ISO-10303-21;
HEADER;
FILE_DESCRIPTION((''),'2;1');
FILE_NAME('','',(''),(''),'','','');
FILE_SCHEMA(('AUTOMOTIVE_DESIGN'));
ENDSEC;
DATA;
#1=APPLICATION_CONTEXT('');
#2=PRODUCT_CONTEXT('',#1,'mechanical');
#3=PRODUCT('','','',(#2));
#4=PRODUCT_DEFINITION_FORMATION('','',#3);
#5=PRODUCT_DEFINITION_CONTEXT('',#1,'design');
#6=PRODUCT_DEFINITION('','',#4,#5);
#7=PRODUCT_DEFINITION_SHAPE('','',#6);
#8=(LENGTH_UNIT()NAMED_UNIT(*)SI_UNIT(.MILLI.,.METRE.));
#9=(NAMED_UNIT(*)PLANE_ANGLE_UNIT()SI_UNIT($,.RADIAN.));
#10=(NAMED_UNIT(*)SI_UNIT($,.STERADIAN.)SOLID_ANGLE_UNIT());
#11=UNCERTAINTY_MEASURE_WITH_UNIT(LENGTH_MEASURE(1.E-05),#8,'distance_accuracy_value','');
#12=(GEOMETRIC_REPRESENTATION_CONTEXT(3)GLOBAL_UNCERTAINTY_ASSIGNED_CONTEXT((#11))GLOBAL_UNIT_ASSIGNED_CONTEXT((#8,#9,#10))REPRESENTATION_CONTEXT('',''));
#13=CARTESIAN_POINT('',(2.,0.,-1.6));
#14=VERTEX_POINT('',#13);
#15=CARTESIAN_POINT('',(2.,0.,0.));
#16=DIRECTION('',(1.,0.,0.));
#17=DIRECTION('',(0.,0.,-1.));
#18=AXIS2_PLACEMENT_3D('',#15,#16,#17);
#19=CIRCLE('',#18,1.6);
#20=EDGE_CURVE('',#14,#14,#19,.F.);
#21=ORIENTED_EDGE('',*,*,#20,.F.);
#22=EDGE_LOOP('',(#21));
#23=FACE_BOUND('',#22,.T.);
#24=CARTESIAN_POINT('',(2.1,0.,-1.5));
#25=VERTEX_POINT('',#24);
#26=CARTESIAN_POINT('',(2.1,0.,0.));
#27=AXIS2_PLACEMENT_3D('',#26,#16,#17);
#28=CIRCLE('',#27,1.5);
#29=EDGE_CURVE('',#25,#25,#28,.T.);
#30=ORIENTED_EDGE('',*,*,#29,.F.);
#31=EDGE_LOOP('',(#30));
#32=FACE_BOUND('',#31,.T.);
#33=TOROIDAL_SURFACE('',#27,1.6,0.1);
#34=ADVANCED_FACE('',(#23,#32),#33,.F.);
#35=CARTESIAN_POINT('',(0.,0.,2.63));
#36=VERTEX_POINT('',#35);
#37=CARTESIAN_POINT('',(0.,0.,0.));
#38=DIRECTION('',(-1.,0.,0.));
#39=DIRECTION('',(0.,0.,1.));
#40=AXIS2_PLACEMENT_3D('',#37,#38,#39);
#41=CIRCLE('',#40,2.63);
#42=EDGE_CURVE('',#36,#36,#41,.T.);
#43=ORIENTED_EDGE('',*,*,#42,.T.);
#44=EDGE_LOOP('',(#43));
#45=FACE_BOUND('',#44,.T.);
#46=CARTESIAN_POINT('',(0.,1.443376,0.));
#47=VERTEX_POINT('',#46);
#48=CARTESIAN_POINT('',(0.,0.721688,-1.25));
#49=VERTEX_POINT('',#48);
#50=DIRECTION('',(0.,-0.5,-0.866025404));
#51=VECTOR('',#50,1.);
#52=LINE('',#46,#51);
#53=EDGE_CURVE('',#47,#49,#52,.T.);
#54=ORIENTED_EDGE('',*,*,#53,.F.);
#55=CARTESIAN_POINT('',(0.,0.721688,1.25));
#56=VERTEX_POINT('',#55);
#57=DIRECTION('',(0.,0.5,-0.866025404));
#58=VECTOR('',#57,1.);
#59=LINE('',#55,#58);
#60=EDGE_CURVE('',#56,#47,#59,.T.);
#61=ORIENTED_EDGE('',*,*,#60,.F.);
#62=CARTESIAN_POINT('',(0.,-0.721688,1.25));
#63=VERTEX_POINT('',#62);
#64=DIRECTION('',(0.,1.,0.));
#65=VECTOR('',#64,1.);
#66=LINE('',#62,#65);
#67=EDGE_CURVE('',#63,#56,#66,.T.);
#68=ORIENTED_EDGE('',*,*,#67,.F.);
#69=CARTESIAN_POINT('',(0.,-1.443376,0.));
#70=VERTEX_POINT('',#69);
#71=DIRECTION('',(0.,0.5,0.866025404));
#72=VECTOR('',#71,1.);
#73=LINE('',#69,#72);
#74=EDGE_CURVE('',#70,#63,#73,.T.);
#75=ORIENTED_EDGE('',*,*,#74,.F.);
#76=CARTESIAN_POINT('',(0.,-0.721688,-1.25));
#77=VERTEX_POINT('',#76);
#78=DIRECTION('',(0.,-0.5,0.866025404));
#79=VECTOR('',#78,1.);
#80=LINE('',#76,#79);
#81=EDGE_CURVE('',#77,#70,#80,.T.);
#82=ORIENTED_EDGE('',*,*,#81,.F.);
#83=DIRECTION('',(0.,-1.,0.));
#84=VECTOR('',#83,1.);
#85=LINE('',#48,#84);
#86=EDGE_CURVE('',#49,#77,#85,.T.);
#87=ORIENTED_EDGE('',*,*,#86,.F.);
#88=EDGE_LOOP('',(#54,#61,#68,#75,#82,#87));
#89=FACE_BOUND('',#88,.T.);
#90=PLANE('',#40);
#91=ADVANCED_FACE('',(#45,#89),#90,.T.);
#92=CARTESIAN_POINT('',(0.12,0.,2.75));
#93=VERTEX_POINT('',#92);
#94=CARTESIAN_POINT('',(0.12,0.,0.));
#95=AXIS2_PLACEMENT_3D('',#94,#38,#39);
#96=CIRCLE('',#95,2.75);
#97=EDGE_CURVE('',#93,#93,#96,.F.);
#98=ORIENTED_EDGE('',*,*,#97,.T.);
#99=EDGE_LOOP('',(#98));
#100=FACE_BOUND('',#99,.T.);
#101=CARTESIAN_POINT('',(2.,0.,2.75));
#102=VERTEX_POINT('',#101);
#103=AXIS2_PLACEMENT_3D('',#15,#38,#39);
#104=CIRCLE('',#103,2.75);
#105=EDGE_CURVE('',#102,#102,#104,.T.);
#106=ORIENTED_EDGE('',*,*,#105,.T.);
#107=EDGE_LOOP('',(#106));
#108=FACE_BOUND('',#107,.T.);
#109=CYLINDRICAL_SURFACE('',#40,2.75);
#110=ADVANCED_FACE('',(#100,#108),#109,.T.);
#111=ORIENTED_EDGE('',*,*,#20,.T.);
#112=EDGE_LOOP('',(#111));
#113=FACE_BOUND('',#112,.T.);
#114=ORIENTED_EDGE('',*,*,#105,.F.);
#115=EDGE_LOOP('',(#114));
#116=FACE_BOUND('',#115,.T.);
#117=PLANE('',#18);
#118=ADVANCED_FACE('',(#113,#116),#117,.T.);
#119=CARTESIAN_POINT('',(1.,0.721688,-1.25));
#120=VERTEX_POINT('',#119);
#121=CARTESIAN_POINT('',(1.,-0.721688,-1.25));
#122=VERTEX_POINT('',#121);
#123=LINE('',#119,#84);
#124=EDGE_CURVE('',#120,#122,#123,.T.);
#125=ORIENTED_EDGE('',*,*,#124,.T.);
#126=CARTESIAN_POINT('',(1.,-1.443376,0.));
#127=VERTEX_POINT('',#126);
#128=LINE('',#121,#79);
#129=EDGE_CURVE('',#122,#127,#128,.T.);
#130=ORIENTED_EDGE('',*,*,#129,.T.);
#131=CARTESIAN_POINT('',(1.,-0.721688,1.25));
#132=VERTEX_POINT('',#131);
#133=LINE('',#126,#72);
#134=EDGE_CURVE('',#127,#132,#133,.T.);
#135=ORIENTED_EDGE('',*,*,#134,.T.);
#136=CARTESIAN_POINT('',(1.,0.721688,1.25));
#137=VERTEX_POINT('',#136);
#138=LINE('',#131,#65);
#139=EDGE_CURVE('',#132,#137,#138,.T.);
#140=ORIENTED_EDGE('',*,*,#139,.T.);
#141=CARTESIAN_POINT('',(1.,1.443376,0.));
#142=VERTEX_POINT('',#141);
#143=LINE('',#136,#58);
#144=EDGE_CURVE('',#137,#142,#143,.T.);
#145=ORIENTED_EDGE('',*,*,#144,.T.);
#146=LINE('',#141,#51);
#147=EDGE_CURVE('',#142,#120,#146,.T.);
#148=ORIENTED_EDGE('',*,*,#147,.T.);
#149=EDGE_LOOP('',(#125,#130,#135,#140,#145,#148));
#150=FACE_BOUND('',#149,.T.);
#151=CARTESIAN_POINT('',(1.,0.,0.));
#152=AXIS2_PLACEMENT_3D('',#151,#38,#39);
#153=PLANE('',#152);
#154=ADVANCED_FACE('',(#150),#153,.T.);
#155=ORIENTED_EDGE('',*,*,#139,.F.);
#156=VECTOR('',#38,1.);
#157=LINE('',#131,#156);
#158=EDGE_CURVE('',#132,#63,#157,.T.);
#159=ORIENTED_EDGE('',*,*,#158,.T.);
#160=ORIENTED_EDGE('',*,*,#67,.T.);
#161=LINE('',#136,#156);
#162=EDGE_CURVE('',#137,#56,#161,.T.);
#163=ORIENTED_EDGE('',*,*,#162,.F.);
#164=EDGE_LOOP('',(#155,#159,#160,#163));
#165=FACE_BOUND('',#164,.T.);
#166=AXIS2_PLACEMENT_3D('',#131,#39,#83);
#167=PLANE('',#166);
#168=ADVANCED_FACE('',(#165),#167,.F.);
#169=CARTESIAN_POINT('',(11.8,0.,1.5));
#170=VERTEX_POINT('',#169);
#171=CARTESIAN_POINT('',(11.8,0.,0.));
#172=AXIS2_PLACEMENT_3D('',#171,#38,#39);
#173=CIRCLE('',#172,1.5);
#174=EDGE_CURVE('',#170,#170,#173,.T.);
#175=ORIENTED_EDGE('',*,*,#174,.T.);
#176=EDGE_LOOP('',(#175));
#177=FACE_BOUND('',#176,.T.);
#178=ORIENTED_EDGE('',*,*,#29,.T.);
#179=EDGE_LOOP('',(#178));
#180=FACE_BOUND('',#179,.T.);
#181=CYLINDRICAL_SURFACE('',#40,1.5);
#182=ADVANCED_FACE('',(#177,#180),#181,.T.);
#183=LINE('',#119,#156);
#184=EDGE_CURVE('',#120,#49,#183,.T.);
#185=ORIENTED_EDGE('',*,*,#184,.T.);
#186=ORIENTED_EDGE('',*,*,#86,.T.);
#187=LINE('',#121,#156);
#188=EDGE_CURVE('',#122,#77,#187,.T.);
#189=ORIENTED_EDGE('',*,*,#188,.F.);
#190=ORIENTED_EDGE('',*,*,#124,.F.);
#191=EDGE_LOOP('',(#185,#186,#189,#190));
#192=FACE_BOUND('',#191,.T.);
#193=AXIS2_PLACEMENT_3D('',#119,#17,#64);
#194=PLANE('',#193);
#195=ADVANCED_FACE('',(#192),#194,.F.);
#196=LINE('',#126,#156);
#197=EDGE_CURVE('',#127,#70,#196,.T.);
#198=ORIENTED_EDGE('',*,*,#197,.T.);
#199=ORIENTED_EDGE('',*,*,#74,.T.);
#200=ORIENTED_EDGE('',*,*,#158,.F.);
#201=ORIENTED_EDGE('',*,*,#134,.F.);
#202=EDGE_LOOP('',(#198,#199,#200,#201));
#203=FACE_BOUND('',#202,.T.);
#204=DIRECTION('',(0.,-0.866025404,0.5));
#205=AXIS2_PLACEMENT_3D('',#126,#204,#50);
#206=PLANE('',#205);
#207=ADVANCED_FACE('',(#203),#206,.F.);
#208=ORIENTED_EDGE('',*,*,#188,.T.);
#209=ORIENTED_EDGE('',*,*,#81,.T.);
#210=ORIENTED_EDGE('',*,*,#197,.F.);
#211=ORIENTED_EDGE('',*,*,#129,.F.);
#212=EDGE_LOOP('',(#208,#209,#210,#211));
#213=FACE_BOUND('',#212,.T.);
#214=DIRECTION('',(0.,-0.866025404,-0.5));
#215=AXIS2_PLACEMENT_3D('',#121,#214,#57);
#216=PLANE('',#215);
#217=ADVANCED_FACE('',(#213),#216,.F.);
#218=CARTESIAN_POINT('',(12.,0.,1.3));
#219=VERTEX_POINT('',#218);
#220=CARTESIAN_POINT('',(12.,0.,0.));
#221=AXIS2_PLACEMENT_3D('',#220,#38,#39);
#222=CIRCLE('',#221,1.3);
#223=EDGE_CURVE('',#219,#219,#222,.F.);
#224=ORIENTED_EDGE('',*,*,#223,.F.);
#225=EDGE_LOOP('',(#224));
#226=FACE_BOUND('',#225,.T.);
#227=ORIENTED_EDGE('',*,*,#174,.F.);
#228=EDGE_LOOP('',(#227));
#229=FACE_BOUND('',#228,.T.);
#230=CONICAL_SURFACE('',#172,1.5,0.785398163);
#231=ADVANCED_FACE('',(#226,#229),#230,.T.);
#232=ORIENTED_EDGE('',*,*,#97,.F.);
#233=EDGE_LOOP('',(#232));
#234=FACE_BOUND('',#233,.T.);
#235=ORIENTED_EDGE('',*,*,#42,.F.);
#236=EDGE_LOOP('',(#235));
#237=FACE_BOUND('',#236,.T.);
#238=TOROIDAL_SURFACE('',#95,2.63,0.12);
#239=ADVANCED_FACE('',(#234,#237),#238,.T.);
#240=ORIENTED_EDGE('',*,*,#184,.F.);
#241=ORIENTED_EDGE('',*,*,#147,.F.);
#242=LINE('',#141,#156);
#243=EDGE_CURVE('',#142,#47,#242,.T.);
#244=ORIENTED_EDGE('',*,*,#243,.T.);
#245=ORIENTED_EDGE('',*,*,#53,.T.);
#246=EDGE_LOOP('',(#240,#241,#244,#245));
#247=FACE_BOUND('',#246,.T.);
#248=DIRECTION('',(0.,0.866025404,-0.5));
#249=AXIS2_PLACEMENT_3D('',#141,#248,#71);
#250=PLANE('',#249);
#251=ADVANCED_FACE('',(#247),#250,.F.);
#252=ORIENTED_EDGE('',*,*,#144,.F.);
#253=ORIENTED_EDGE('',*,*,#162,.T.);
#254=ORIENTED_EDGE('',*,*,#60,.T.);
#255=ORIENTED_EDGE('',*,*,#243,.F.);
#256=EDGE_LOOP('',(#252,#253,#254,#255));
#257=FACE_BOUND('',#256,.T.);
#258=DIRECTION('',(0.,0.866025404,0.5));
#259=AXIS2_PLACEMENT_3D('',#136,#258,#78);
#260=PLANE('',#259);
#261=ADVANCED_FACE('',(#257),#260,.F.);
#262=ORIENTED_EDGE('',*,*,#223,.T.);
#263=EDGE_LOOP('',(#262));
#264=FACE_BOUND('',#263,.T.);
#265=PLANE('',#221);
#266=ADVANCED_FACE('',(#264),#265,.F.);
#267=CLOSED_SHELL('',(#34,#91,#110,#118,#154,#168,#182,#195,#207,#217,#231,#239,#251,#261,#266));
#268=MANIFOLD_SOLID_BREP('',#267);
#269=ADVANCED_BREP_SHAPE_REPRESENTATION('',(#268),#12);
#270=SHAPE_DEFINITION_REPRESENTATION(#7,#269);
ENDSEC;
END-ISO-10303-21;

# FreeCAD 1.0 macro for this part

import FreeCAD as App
import Part
import Sketcher
Q = App.Units.Quantity


def edges_at(feature, points):
    """Names of the edges that pass closest to the given points."""
    edges = feature.Shape.Edges
    near = lambda p: min(range(len(edges)), key=lambda i: edges[i].distToShape(Part.Vertex(*p))[0])
    return sorted({f"Edge{near(p) + 1}" for p in points})

doc = App.newDocument("Part")
body = doc.addObject("PartDesign::Body", "Body")

# Sketch on XY plane
sketch1 = body.newObject("Sketcher::SketchObject", "Sketch")
sketch1.AttachmentSupport = (doc.getObject("XY_Plane"), [""])
sketch1.MapMode = "FlatFace"
sketch1.addGeometry(Part.LineSegment(App.Vector(12, 0, 0), App.Vector(12, 1.5, 0)), False)
sketch1.addGeometry(Part.LineSegment(App.Vector(12, 1.5, 0), App.Vector(2, 1.5, 0)), False)
sketch1.addGeometry(Part.LineSegment(App.Vector(2, 1.5, 0), App.Vector(2, 2.75, 0)), False)
sketch1.addGeometry(Part.LineSegment(App.Vector(2, 2.75, 0), App.Vector(0, 2.75, 0)), False)
sketch1.addGeometry(Part.LineSegment(App.Vector(0, 2.75, 0), App.Vector(0, 0, 0)), False)
sketch1.addGeometry(Part.LineSegment(App.Vector(0, 0, 0), App.Vector(12, 0, 0)), False)
sketch1.addConstraint(Sketcher.Constraint("Coincident", 0, 2, 1, 1))
sketch1.addConstraint(Sketcher.Constraint("Coincident", 1, 2, 2, 1))
sketch1.addConstraint(Sketcher.Constraint("Coincident", 2, 2, 3, 1))
sketch1.addConstraint(Sketcher.Constraint("Coincident", 3, 2, 4, 1))
sketch1.addConstraint(Sketcher.Constraint("Coincident", 4, 2, 5, 1))
sketch1.addConstraint(Sketcher.Constraint("Coincident", 5, 2, 0, 1))
sketch1.addConstraint(Sketcher.Constraint("Vertical", 0))
sketch1.addConstraint(Sketcher.Constraint("Horizontal", 1))
sketch1.addConstraint(Sketcher.Constraint("Vertical", 2))
sketch1.addConstraint(Sketcher.Constraint("Horizontal", 3))
sketch1.addConstraint(Sketcher.Constraint("Vertical", 4))
sketch1.addConstraint(Sketcher.Constraint("Horizontal", 5))
sketch1.addConstraint(Sketcher.Constraint("Coincident", 4, 2, -1, 1))
sketch1.addConstraint(Sketcher.Constraint("DistanceX", 1, 2, 1, 1, 10.0))
sketch1.addConstraint(Sketcher.Constraint("DistanceX", 3, 2, 3, 1, 2.0))
sketch1.addConstraint(Sketcher.Constraint("DistanceY", 0, 1, 0, 2, 1.5))
sketch1.addConstraint(Sketcher.Constraint("DistanceY", 2, 1, 2, 2, 1.25))
revolution = body.newObject("PartDesign::Revolution", "Revolution")
revolution.Profile = sketch1
revolution.ReferenceAxis = (sketch1, ["H_Axis"])
revolution.Angle = 360
doc.recompute()

fillet = body.newObject("PartDesign::Fillet", "Fillet")
fillet.Base = (revolution, edges_at(revolution, [(2, 0, -1.5)]))
fillet.Radius = 0.1
doc.recompute()

fillet2 = body.newObject("PartDesign::Fillet", "Fillet001")
fillet2.Base = (fillet, edges_at(fillet, [(0, 0, -2.75)]))
fillet2.Radius = 0.12
doc.recompute()

chamfer = body.newObject("PartDesign::Chamfer", "Chamfer")
chamfer.Base = (fillet2, edges_at(fillet2, [(12, 0, -1.5)]))
chamfer.Size = 0.2

# Sketch on YZ plane
sketch2 = body.newObject("Sketcher::SketchObject", "Sketch001")
sketch2.AttachmentSupport = (doc.getObject("YZ_Plane"), [""])
sketch2.MapMode = "FlatFace"
sketch2.addGeometry(Part.LineSegment(App.Vector(1.443376, 0, 0), App.Vector(0.721688, -1.25, 0)), False)
sketch2.addGeometry(Part.LineSegment(App.Vector(0.721688, -1.25, 0), App.Vector(-0.721688, -1.25, 0)), False)
sketch2.addGeometry(Part.LineSegment(App.Vector(-0.721688, -1.25, 0), App.Vector(-1.443376, 0, 0)), False)
sketch2.addGeometry(Part.LineSegment(App.Vector(-1.443376, 0, 0), App.Vector(-0.721688, 1.25, 0)), False)
sketch2.addGeometry(Part.LineSegment(App.Vector(-0.721688, 1.25, 0), App.Vector(0.721688, 1.25, 0)), False)
sketch2.addGeometry(Part.LineSegment(App.Vector(0.721688, 1.25, 0), App.Vector(1.443376, 0, 0)), False)
sketch2.addConstraint(Sketcher.Constraint("Coincident", 0, 2, 1, 1))
sketch2.addConstraint(Sketcher.Constraint("Coincident", 1, 2, 2, 1))
sketch2.addConstraint(Sketcher.Constraint("Coincident", 2, 2, 3, 1))
sketch2.addConstraint(Sketcher.Constraint("Coincident", 3, 2, 4, 1))
sketch2.addConstraint(Sketcher.Constraint("Coincident", 4, 2, 5, 1))
sketch2.addConstraint(Sketcher.Constraint("Coincident", 5, 2, 0, 1))
sketch2.addConstraint(Sketcher.Constraint("Horizontal", 1))
sketch2.addConstraint(Sketcher.Constraint("Horizontal", 4))
sketch2.addConstraint(Sketcher.Constraint("Symmetric", 0, 2, 3, 2, -1, 1))
sketch2.addConstraint(Sketcher.Constraint("Symmetric", 2, 2, 5, 2, -1, 1))
sketch2.addConstraint(Sketcher.Constraint("PointOnObject", 2, 2, -1))
sketch2.addConstraint(Sketcher.Constraint("Parallel", 2, 5))
sketch2.addConstraint(Sketcher.Constraint("Vertical", 1, 2, 3, 2))
sketch2.addConstraint(Sketcher.Constraint("Angle", 0, Q("-120 deg")))
sketch2.addConstraint(Sketcher.Constraint("DistanceY", 1, 2, 3, 2, 2.5))
sketch2.addConstraint(Sketcher.Constraint("DistanceX", 1, 2, 1, 1, 1.443376))
pocket1 = body.newObject("PartDesign::Pocket", "Pocket")
pocket1.Profile = sketch2
pocket1.Length = 1
pocket1.Reversed = True

doc.recompute()
